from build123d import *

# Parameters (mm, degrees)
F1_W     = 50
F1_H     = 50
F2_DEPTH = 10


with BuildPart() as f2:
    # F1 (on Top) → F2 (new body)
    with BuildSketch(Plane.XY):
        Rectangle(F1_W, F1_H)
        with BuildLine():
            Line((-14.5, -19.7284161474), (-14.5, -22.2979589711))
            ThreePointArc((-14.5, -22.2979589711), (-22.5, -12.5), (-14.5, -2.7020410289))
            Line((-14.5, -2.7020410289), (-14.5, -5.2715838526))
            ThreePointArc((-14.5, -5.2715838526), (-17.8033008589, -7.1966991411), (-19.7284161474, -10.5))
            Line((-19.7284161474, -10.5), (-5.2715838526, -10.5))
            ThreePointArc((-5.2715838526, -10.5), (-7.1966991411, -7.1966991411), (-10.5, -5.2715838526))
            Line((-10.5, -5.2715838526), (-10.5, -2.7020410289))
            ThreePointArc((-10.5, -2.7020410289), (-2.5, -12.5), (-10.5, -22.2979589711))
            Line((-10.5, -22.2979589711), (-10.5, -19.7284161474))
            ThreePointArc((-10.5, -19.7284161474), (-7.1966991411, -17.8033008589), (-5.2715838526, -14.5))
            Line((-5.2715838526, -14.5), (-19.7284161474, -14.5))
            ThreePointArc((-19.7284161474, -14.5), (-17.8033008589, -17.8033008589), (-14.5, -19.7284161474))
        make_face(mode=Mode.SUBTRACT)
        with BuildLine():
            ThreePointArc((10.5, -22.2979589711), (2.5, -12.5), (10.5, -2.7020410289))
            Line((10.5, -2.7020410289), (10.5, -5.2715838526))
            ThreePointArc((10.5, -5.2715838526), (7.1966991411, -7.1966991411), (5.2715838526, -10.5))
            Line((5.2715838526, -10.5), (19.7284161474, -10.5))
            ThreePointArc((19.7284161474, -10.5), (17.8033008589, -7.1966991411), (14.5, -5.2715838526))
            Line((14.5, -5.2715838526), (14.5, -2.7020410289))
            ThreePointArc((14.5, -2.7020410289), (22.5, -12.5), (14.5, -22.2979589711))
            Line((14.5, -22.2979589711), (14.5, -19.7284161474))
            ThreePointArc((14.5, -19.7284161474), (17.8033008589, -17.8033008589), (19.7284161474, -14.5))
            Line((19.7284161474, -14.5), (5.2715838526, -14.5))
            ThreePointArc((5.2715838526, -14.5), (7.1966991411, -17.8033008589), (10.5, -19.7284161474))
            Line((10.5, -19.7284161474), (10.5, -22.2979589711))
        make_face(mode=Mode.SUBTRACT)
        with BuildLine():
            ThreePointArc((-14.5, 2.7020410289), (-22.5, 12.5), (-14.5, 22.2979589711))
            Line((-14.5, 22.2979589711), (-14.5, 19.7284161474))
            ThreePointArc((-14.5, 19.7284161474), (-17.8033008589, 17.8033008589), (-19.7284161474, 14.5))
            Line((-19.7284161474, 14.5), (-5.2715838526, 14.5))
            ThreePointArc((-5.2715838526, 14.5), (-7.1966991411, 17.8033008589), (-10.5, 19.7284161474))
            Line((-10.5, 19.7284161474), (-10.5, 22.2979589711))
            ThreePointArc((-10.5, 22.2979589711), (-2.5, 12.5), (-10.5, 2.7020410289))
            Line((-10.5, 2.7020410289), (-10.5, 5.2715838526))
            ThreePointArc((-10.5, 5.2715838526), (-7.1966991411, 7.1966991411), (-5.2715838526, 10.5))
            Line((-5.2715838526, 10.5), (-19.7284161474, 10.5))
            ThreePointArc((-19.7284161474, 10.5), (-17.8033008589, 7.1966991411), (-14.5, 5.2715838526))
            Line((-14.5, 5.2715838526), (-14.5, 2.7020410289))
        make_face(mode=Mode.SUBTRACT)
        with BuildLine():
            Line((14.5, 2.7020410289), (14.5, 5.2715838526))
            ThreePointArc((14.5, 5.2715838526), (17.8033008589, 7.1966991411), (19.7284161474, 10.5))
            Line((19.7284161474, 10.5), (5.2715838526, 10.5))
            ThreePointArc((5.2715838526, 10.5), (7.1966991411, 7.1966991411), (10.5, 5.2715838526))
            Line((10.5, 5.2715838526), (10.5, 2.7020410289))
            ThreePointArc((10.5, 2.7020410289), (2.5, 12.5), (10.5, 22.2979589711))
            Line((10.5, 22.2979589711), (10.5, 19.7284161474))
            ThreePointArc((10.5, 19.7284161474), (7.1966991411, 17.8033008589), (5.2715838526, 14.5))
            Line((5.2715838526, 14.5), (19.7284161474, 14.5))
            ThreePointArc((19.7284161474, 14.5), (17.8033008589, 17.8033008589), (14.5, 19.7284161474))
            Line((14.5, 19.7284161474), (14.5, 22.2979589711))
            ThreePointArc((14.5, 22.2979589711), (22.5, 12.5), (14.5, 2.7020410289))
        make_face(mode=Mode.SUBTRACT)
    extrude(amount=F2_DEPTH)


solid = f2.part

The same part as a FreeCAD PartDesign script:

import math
import FreeCAD as App
import Part
import Sketcher

V = App.Vector

doc = App.newDocument("Part")
params = doc.addObject("Spreadsheet::Sheet", "Params")
for row, (alias, value) in enumerate([
    ("sketch1_radius", "10 mm"),
    ("sketch1_radius2", "7.5 mm"),
    ("sketch1_width", "50 mm"),
    ("pad1_length", "10 mm"),
], start=1):
    params.set(f"A{row}", alias)
    params.set(f"B{row}", "=" + value)
    params.setAlias(f"B{row}", alias)

body = doc.addObject("PartDesign::Body", "Body")

# Sketch on XY plane
sketch1 = body.newObject("Sketcher::SketchObject", "Sketch")
sketch1.AttachmentSupport = (doc.getObject("XY_Plane"), [""])
sketch1.MapMode = "FlatFace"
sketch1.addGeometry(Part.LineSegment(V(-25, 25, 0), V(-25, -25, 0)), False)
sketch1.addGeometry(Part.LineSegment(V(-25, -25, 0), V(25, -25, 0)), False)
sketch1.addGeometry(Part.LineSegment(V(25, -25, 0), V(25, 25, 0)), False)
sketch1.addGeometry(Part.LineSegment(V(25, 25, 0), V(-25, 25, 0)), False)
sketch1.addGeometry(Part.ArcOfCircle(Part.Circle(V(-12.5, -12.5, 0), V(0, 0, 1), 7.5), math.radians(-164.53399), math.radians(-105.46601)), False)
sketch1.addGeometry(Part.LineSegment(V(-14.5, -19.728416, 0), V(-14.5, -22.297959, 0)), False)
sketch1.addGeometry(Part.ArcOfCircle(Part.Circle(V(-12.5, -12.5, 0), V(0, 0, 1), 10), math.radians(101.536959), math.radians(258.463041)), False)
sketch1.addGeometry(Part.LineSegment(V(-14.5, -2.702041, 0), V(-14.5, -5.271584, 0)), False)
sketch1.addGeometry(Part.ArcOfCircle(Part.Circle(V(-12.5, -12.5, 0), V(0, 0, 1), 7.5), math.radians(105.46601), math.radians(164.53399)), False)
sketch1.addGeometry(Part.LineSegment(V(-19.728416, -10.5, 0), V(-5.271584, -10.5, 0)), False)
sketch1.addGeometry(Part.ArcOfCircle(Part.Circle(V(-12.5, -12.5, 0), V(0, 0, 1), 7.5), math.radians(15.46601), math.radians(74.53399)), False)
sketch1.addGeometry(Part.LineSegment(V(-10.5, -5.271584, 0), V(-10.5, -2.702041, 0)), False)
sketch1.addGeometry(Part.ArcOfCircle(Part.Circle(V(-12.5, -12.5, 0), V(0, 0, 1), 10), math.radians(-78.463041), math.radians(78.463041)), False)
sketch1.addGeometry(Part.LineSegment(V(-10.5, -22.297959, 0), V(-10.5, -19.728416, 0)), False)
sketch1.addGeometry(Part.ArcOfCircle(Part.Circle(V(-12.5, -12.5, 0), V(0, 0, 1), 7.5), math.radians(-74.53399), math.radians(-15.46601)), False)
sketch1.addGeometry(Part.LineSegment(V(-5.271584, -14.5, 0), V(-19.728416, -14.5, 0)), False)
sketch1.addGeometry(Part.LineSegment(V(10.5, -19.728416, 0), V(10.5, -22.297959, 0)), False)
sketch1.addGeometry(Part.ArcOfCircle(Part.Circle(V(12.5, -12.5, 0), V(0, 0, 1), 10), math.radians(101.536959), math.radians(258.463041)), False)
sketch1.addGeometry(Part.LineSegment(V(10.5, -2.702041, 0), V(10.5, -5.271584, 0)), False)
sketch1.addGeometry(Part.ArcOfCircle(Part.Circle(V(12.5, -12.5, 0), V(0, 0, 1), 7.5), math.radians(105.46601), math.radians(164.53399)), False)
sketch1.addGeometry(Part.LineSegment(V(5.271584, -10.5, 0), V(19.728416, -10.5, 0)), False)
sketch1.addGeometry(Part.ArcOfCircle(Part.Circle(V(12.5, -12.5, 0), V(0, 0, 1), 7.5), math.radians(15.46601), math.radians(74.53399)), False)
sketch1.addGeometry(Part.LineSegment(V(14.5, -5.271584, 0), V(14.5, -2.702041, 0)), False)
sketch1.addGeometry(Part.ArcOfCircle(Part.Circle(V(12.5, -12.5, 0), V(0, 0, 1), 10), math.radians(-78.463041), math.radians(78.463041)), False)
sketch1.addGeometry(Part.LineSegment(V(14.5, -22.297959, 0), V(14.5, -19.728416, 0)), False)
sketch1.addGeometry(Part.ArcOfCircle(Part.Circle(V(12.5, -12.5, 0), V(0, 0, 1), 7.5), math.radians(-74.53399), math.radians(-15.46601)), False)
sketch1.addGeometry(Part.LineSegment(V(19.728416, -14.5, 0), V(5.271584, -14.5, 0)), False)
sketch1.addGeometry(Part.ArcOfCircle(Part.Circle(V(12.5, -12.5, 0), V(0, 0, 1), 7.5), math.radians(-164.53399), math.radians(-105.46601)), False)
sketch1.addGeometry(Part.LineSegment(V(-14.5, 5.271584, 0), V(-14.5, 2.702041, 0)), False)
sketch1.addGeometry(Part.ArcOfCircle(Part.Circle(V(-12.5, 12.5, 0), V(0, 0, 1), 10), math.radians(101.536959), math.radians(258.463041)), False)
sketch1.addGeometry(Part.LineSegment(V(-14.5, 22.297959, 0), V(-14.5, 19.728416, 0)), False)
sketch1.addGeometry(Part.ArcOfCircle(Part.Circle(V(-12.5, 12.5, 0), V(0, 0, 1), 7.5), math.radians(105.46601), math.radians(164.53399)), False)
sketch1.addGeometry(Part.LineSegment(V(-19.728416, 14.5, 0), V(-5.271584, 14.5, 0)), False)
sketch1.addGeometry(Part.ArcOfCircle(Part.Circle(V(-12.5, 12.5, 0), V(0, 0, 1), 7.5), math.radians(15.46601), math.radians(74.53399)), False)
sketch1.addGeometry(Part.LineSegment(V(-10.5, 19.728416, 0), V(-10.5, 22.297959, 0)), False)
sketch1.addGeometry(Part.ArcOfCircle(Part.Circle(V(-12.5, 12.5, 0), V(0, 0, 1), 10), math.radians(-78.463041), math.radians(78.463041)), False)
sketch1.addGeometry(Part.LineSegment(V(-10.5, 2.702041, 0), V(-10.5, 5.271584, 0)), False)
sketch1.addGeometry(Part.ArcOfCircle(Part.Circle(V(-12.5, 12.5, 0), V(0, 0, 1), 7.5), math.radians(-74.53399), math.radians(-15.46601)), False)
sketch1.addGeometry(Part.LineSegment(V(-5.271584, 10.5, 0), V(-19.728416, 10.5, 0)), False)
sketch1.addGeometry(Part.ArcOfCircle(Part.Circle(V(-12.5, 12.5, 0), V(0, 0, 1), 7.5), math.radians(-164.53399), math.radians(-105.46601)), False)
sketch1.addGeometry(Part.ArcOfCircle(Part.Circle(V(12.5, 12.5, 0), V(0, 0, 1), 10), math.radians(-78.463041), math.radians(78.463041)), False)
sketch1.addGeometry(Part.LineSegment(V(14.5, 2.702041, 0), V(14.5, 5.271584, 0)), False)
sketch1.addGeometry(Part.ArcOfCircle(Part.Circle(V(12.5, 12.5, 0), V(0, 0, 1), 7.5), math.radians(-74.53399), math.radians(-15.46601)), False)
sketch1.addGeometry(Part.LineSegment(V(19.728416, 10.5, 0), V(5.271584, 10.5, 0)), False)
sketch1.addGeometry(Part.ArcOfCircle(Part.Circle(V(12.5, 12.5, 0), V(0, 0, 1), 7.5), math.radians(-164.53399), math.radians(-105.46601)), False)
sketch1.addGeometry(Part.LineSegment(V(10.5, 5.271584, 0), V(10.5, 2.702041, 0)), False)
sketch1.addGeometry(Part.ArcOfCircle(Part.Circle(V(12.5, 12.5, 0), V(0, 0, 1), 10), math.radians(101.536959), math.radians(258.463041)), False)
sketch1.addGeometry(Part.LineSegment(V(10.5, 22.297959, 0), V(10.5, 19.728416, 0)), False)
sketch1.addGeometry(Part.ArcOfCircle(Part.Circle(V(12.5, 12.5, 0), V(0, 0, 1), 7.5), math.radians(105.46601), math.radians(164.53399)), False)
sketch1.addGeometry(Part.LineSegment(V(5.271584, 14.5, 0), V(19.728416, 14.5, 0)), False)
sketch1.addGeometry(Part.ArcOfCircle(Part.Circle(V(12.5, 12.5, 0), V(0, 0, 1), 7.5), math.radians(15.46601), math.radians(74.53399)), False)
sketch1.addGeometry(Part.LineSegment(V(14.5, 19.728416, 0), V(14.5, 22.297959, 0)), False)
sketch1.addConstraint(Sketcher.Constraint("Coincident", 0, 2, 1, 1))
sketch1.addConstraint(Sketcher.Constraint("Coincident", 1, 2, 2, 1))
sketch1.addConstraint(Sketcher.Constraint("Coincident", 2, 2, 3, 1))
sketch1.addConstraint(Sketcher.Constraint("Coincident", 3, 2, 0, 1))
sketch1.addConstraint(Sketcher.Constraint("Coincident", 4, 2, 5, 1))
sketch1.addConstraint(Sketcher.Constraint("Coincident", 5, 2, 6, 2))
sketch1.addConstraint(Sketcher.Constraint("Coincident", 6, 1, 7, 1))
sketch1.addConstraint(Sketcher.Constraint("Coincident", 7, 2, 8, 1))
sketch1.addConstraint(Sketcher.Constraint("Coincident", 8, 2, 9, 1))
sketch1.addConstraint(Sketcher.Constraint("Coincident", 9, 2, 10, 1))
sketch1.addConstraint(Sketcher.Constraint("Coincident", 10, 2, 11, 1))
sketch1.addConstraint(Sketcher.Constraint("Coincident", 11, 2, 12, 2))
sketch1.addConstraint(Sketcher.Constraint("Coincident", 12, 1, 13, 1))
sketch1.addConstraint(Sketcher.Constraint("Coincident", 13, 2, 14, 1))
sketch1.addConstraint(Sketcher.Constraint("Coincident", 14, 2, 15, 1))
sketch1.addConstraint(Sketcher.Constraint("Coincident", 15, 2, 4, 1))
sketch1.addConstraint(Sketcher.Constraint("Coincident", 16, 2, 17, 2))
sketch1.addConstraint(Sketcher.Constraint("Coincident", 17, 1, 18, 1))
sketch1.addConstraint(Sketcher.Constraint("Coincident", 18, 2, 19, 1))
sketch1.addConstraint(Sketcher.Constraint("Coincident", 19, 2, 20, 1))
sketch1.addConstraint(Sketcher.Constraint("Coincident", 20, 2, 21, 1))
sketch1.addConstraint(Sketcher.Constraint("Coincident", 21, 2, 22, 1))
sketch1.addConstraint(Sketcher.Constraint("Coincident", 22, 2, 23, 2))
sketch1.addConstraint(Sketcher.Constraint("Coincident", 23, 1, 24, 1))
sketch1.addConstraint(Sketcher.Constraint("Coincident", 24, 2, 25, 1))
sketch1.addConstraint(Sketcher.Constraint("Coincident", 25, 2, 26, 1))
sketch1.addConstraint(Sketcher.Constraint("Coincident", 26, 2, 27, 1))
sketch1.addConstraint(Sketcher.Constraint("Coincident", 27, 2, 16, 1))
sketch1.addConstraint(Sketcher.Constraint("Coincident", 28, 2, 29, 2))
sketch1.addConstraint(Sketcher.Constraint("Coincident", 29, 1, 30, 1))
sketch1.addConstraint(Sketcher.Constraint("Coincident", 30, 2, 31, 1))
sketch1.addConstraint(Sketcher.Constraint("Coincident", 31, 2, 32, 1))
sketch1.addConstraint(Sketcher.Constraint("Coincident", 32, 2, 33, 1))
sketch1.addConstraint(Sketcher.Constraint("Coincident", 33, 2, 34, 1))
sketch1.addConstraint(Sketcher.Constraint("Coincident", 34, 2, 35, 2))
sketch1.addConstraint(Sketcher.Constraint("Coincident", 35, 1, 36, 1))
sketch1.addConstraint(Sketcher.Constraint("Coincident", 36, 2, 37, 1))
sketch1.addConstraint(Sketcher.Constraint("Coincident", 37, 2, 38, 1))
sketch1.addConstraint(Sketcher.Constraint("Coincident", 38, 2, 39, 1))
sketch1.addConstraint(Sketcher.Constraint("Coincident", 39, 2, 28, 1))
sketch1.addConstraint(Sketcher.Constraint("Coincident", 40, 1, 41, 1))
sketch1.addConstraint(Sketcher.Constraint("Coincident", 41, 2, 42, 1))
sketch1.addConstraint(Sketcher.Constraint("Coincident", 42, 2, 43, 1))
sketch1.addConstraint(Sketcher.Constraint("Coincident", 43, 2, 44, 1))
sketch1.addConstraint(Sketcher.Constraint("Coincident", 44, 2, 45, 1))
sketch1.addConstraint(Sketcher.Constraint("Coincident", 45, 2, 46, 2))
sketch1.addConstraint(Sketcher.Constraint("Coincident", 46, 1, 47, 1))
sketch1.addConstraint(Sketcher.Constraint("Coincident", 47, 2, 48, 1))
sketch1.addConstraint(Sketcher.Constraint("Coincident", 48, 2, 49, 1))
sketch1.addConstraint(Sketcher.Constraint("Coincident", 49, 2, 50, 1))
sketch1.addConstraint(Sketcher.Constraint("Coincident", 50, 2, 51, 1))
sketch1.addConstraint(Sketcher.Constraint("Coincident", 51, 2, 40, 2))
sketch1.addConstraint(Sketcher.Constraint("Vertical", 0))
sketch1.addConstraint(Sketcher.Constraint("Horizontal", 1))
sketch1.addConstraint(Sketcher.Constraint("Vertical", 2))
sketch1.addConstraint(Sketcher.Constraint("Horizontal", 3))
sketch1.addConstraint(Sketcher.Constraint("Vertical", 5))
sketch1.addConstraint(Sketcher.Constraint("Vertical", 7))
sketch1.addConstraint(Sketcher.Constraint("Horizontal", 9))
sketch1.addConstraint(Sketcher.Constraint("Vertical", 11))
sketch1.addConstraint(Sketcher.Constraint("Vertical", 13))
sketch1.addConstraint(Sketcher.Constraint("Horizontal", 15))
sketch1.addConstraint(Sketcher.Constraint("Vertical", 16))
sketch1.addConstraint(Sketcher.Constraint("Vertical", 18))
sketch1.addConstraint(Sketcher.Constraint("Horizontal", 20))
sketch1.addConstraint(Sketcher.Constraint("Vertical", 22))
sketch1.addConstraint(Sketcher.Constraint("Vertical", 24))
sketch1.addConstraint(Sketcher.Constraint("Horizontal", 26))
sketch1.addConstraint(Sketcher.Constraint("Vertical", 28))
sketch1.addConstraint(Sketcher.Constraint("Vertical", 30))
sketch1.addConstraint(Sketcher.Constraint("Horizontal", 32))
sketch1.addConstraint(Sketcher.Constraint("Vertical", 34))
sketch1.addConstraint(Sketcher.Constraint("Vertical", 36))
sketch1.addConstraint(Sketcher.Constraint("Horizontal", 38))
sketch1.addConstraint(Sketcher.Constraint("Vertical", 41))
sketch1.addConstraint(Sketcher.Constraint("Horizontal", 43))
sketch1.addConstraint(Sketcher.Constraint("Vertical", 45))
sketch1.addConstraint(Sketcher.Constraint("Vertical", 47))
sketch1.addConstraint(Sketcher.Constraint("Horizontal", 49))
sketch1.addConstraint(Sketcher.Constraint("Vertical", 51))
sketch1.addConstraint(Sketcher.Constraint("Coincident", 6, 3, 4, 3))
sketch1.addConstraint(Sketcher.Constraint("Coincident", 8, 3, 4, 3))
sketch1.addConstraint(Sketcher.Constraint("Coincident", 10, 3, 4, 3))
sketch1.addConstraint(Sketcher.Constraint("Coincident", 12, 3, 4, 3))
sketch1.addConstraint(Sketcher.Constraint("Coincident", 14, 3, 4, 3))
sketch1.addConstraint(Sketcher.Constraint("Coincident", 19, 3, 17, 3))
sketch1.addConstraint(Sketcher.Constraint("Coincident", 21, 3, 17, 3))
sketch1.addConstraint(Sketcher.Constraint("Coincident", 23, 3, 17, 3))
sketch1.addConstraint(Sketcher.Constraint("Coincident", 25, 3, 17, 3))
sketch1.addConstraint(Sketcher.Constraint("Coincident", 27, 3, 17, 3))
sketch1.addConstraint(Sketcher.Constraint("Coincident", 31, 3, 29, 3))
sketch1.addConstraint(Sketcher.Constraint("Coincident", 33, 3, 29, 3))
sketch1.addConstraint(Sketcher.Constraint("Coincident", 35, 3, 29, 3))
sketch1.addConstraint(Sketcher.Constraint("Coincident", 37, 3, 29, 3))
sketch1.addConstraint(Sketcher.Constraint("Coincident", 39, 3, 29, 3))
sketch1.addConstraint(Sketcher.Constraint("Coincident", 42, 3, 40, 3))
sketch1.addConstraint(Sketcher.Constraint("Coincident", 44, 3, 40, 3))
sketch1.addConstraint(Sketcher.Constraint("Coincident", 46, 3, 40, 3))
sketch1.addConstraint(Sketcher.Constraint("Coincident", 48, 3, 40, 3))
sketch1.addConstraint(Sketcher.Constraint("Coincident", 50, 3, 40, 3))
sketch1.addConstraint(Sketcher.Constraint("Equal", 4, 8))
sketch1.addConstraint(Sketcher.Constraint("Equal", 8, 10))
sketch1.addConstraint(Sketcher.Constraint("Equal", 6, 12))
sketch1.addConstraint(Sketcher.Constraint("Equal", 10, 14))
sketch1.addConstraint(Sketcher.Constraint("Equal", 12, 17))
sketch1.addConstraint(Sketcher.Constraint("Equal", 14, 19))
sketch1.addConstraint(Sketcher.Constraint("Equal", 19, 21))
sketch1.addConstraint(Sketcher.Constraint("Equal", 17, 23))
sketch1.addConstraint(Sketcher.Constraint("Equal", 21, 25))
sketch1.addConstraint(Sketcher.Constraint("Equal", 25, 27))
sketch1.addConstraint(Sketcher.Constraint("Equal", 23, 29))
sketch1.addConstraint(Sketcher.Constraint("Equal", 27, 31))
sketch1.addConstraint(Sketcher.Constraint("Equal", 31, 33))
sketch1.addConstraint(Sketcher.Constraint("Equal", 29, 35))
sketch1.addConstraint(Sketcher.Constraint("Equal", 33, 37))
sketch1.addConstraint(Sketcher.Constraint("Equal", 37, 39))
sketch1.addConstraint(Sketcher.Constraint("Equal", 35, 40))
sketch1.addConstraint(Sketcher.Constraint("Equal", 39, 42))
sketch1.addConstraint(Sketcher.Constraint("Equal", 42, 44))
sketch1.addConstraint(Sketcher.Constraint("Equal", 40, 46))
sketch1.addConstraint(Sketcher.Constraint("Equal", 44, 48))
sketch1.addConstraint(Sketcher.Constraint("Equal", 48, 50))
sketch1.addConstraint(Sketcher.Constraint("Symmetric", 17, 3, 29, 3, -1, 1))
sketch1.addConstraint(Sketcher.Constraint("Symmetric", 4, 3, 40, 3, -1, 1))
sketch1.addConstraint(Sketcher.Constraint("Symmetric", 0, 2, 2, 2, -1, 1))
sketch1.addConstraint(Sketcher.Constraint("Symmetric", 4, 3, 17, 3, -2))
sketch1.addConstraint(Sketcher.Constraint("Horizontal", 7, 2, 10, 2))
sketch1.addConstraint(Sketcher.Constraint("Horizontal", 5, 2, 12, 1))
sketch1.addConstraint(Sketcher.Constraint("Horizontal", 12, 1, 16, 2))
sketch1.addConstraint(Sketcher.Constraint("Horizontal", 11, 2, 17, 1))
sketch1.addConstraint(Sketcher.Constraint("Horizontal", 9, 2, 19, 2))
sketch1.addConstraint(Sketcher.Constraint("Horizontal", 18, 2, 21, 2))
sketch1.addConstraint(Sketcher.Constraint("Horizontal", 16, 2, 23, 1))
sketch1.addConstraint(Sketcher.Constraint("Horizontal", 15, 2, 25, 2))
sketch1.addConstraint(Sketcher.Constraint("Horizontal", 30, 2, 33, 2))
sketch1.addConstraint(Sketcher.Constraint("Horizontal", 28, 2, 35, 1))
sketch1.addConstraint(Sketcher.Constraint("Horizontal", 35, 1, 40, 1))
sketch1.addConstraint(Sketcher.Constraint("Horizontal", 38, 2, 42, 2))
sketch1.addConstraint(Sketcher.Constraint("Horizontal", 41, 2, 44, 2))
sketch1.addConstraint(Sketcher.Constraint("Horizontal", 34, 2, 46, 1))
sketch1.addConstraint(Sketcher.Constraint("Horizontal", 32, 2, 48, 2))
sketch1.addConstraint(Sketcher.Constraint("Horizontal", 47, 2, 50, 2))
sketch1.addConstraint(Sketcher.Constraint("Vertical", 5, 2, 6, 1))
sketch1.addConstraint(Sketcher.Constraint("Vertical", 9, 2, 14, 2))
sketch1.addConstraint(Sketcher.Constraint("Vertical", 7, 2, 28, 2))
sketch1.addConstraint(Sketcher.Constraint("Vertical", 28, 2, 29, 1))
sketch1.addConstraint(Sketcher.Constraint("Vertical", 15, 2, 31, 2))
sketch1.addConstraint(Sketcher.Constraint("Vertical", 32, 2, 37, 2))
sketch1.addConstraint(Sketcher.Constraint("Equal", 3, 0))
sketch1.addConstraint(Sketcher.Constraint("Radius", 6, 10.0))
sketch1.addConstraint(Sketcher.Constraint("Radius", 4, 7.5))
sketch1.addConstraint(Sketcher.Constraint("DistanceX", 1, 1, 1, 2, 50.0))
sketch1.addConstraint(Sketcher.Constraint("DistanceX", 4, 3, -1, 1, 12.5))
sketch1.addConstraint(Sketcher.Constraint("DistanceY", 4, 3, -1, 1, 12.5))
sketch1.addConstraint(Sketcher.Constraint("DistanceX", 4, 2, -1, 1, 14.5))
sketch1.addConstraint(Sketcher.Constraint("DistanceY", 8, 2, -1, 1, 10.5))
sketch1.setExpression("Constraints[149]", "Params.sketch1_radius")
sketch1.setExpression("Constraints[150]", "Params.sketch1_radius2")
sketch1.setExpression("Constraints[151]", "Params.sketch1_width")
pad1 = body.newObject("PartDesign::Pad", "Pad")
pad1.Profile = sketch1
pad1.setExpression("Length", "Params.pad1_length")

doc.recompute()
